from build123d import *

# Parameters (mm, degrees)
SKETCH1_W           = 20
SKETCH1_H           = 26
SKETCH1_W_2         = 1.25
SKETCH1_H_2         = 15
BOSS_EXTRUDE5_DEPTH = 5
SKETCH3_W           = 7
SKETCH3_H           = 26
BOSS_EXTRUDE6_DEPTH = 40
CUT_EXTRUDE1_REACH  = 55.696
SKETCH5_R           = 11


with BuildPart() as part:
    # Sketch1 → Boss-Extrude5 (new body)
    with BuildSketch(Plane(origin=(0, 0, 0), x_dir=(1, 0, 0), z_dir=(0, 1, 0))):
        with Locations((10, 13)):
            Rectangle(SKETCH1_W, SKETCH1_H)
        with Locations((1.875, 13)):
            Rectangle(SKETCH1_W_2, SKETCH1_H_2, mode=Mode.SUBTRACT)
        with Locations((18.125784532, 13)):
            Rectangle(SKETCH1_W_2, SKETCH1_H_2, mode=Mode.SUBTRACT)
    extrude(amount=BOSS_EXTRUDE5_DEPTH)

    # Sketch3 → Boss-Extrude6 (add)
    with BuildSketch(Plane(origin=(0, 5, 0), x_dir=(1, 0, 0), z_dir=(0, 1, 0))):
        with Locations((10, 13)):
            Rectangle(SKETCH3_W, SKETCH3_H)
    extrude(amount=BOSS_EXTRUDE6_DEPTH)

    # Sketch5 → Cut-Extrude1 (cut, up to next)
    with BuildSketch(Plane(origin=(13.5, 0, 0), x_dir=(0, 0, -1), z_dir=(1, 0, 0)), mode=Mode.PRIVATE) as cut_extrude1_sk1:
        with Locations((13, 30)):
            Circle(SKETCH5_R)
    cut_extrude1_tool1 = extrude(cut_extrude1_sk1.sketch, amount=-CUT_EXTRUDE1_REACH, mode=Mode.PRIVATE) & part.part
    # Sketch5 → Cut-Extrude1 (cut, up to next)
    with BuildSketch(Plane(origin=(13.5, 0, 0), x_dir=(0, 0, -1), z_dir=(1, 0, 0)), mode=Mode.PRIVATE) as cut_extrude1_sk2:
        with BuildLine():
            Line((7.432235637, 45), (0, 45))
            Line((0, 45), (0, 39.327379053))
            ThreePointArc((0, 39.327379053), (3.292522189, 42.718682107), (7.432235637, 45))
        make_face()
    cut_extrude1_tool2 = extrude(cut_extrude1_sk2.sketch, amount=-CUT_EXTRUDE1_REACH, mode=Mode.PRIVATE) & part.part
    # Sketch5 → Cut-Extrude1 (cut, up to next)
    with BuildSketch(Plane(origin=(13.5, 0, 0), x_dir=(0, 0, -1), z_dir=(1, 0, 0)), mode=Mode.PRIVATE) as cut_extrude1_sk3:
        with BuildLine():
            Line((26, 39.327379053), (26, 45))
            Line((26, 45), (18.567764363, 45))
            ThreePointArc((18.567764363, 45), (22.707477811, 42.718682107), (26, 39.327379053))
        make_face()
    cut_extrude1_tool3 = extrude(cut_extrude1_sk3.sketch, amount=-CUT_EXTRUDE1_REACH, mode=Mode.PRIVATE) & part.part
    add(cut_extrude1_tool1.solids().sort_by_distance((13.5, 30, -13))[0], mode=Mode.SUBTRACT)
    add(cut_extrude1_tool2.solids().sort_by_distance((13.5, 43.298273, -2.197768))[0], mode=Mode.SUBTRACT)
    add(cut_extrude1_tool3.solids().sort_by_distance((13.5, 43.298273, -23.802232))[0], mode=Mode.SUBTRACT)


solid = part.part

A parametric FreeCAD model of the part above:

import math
import FreeCAD as App
import Part
import Sketcher

V = App.Vector
Q = App.Units.Quantity


def add_polygon(sketch, points):
    """Adds a closed chain of lines whose ends are joined by coincident constraints."""
    first, n = sketch.GeometryCount, len(points)
    for a, b in zip(points, points[1:] + points[:1]):
        sketch.addGeometry(Part.LineSegment(App.Vector(*a, 0), App.Vector(*b, 0)), False)
    for i in range(n):
        sketch.addConstraint(Sketcher.Constraint("Coincident", first + i, 2, first + (i + 1) % n, 1))

doc = App.newDocument("Part")
params = doc.addObject("Spreadsheet::Sheet", "Params")
for row, (alias, value) in enumerate([
    ("sketch1_width", "20 mm"),
    ("sketch1_height", "26 mm"),
    ("sketch1_height2", "15 mm"),
    ("sketch1_width2", "1.25 mm"),
    ("pad1_length", "5 mm"),
    ("sketch2_width", "7 mm"),
    ("sketch2_height", "26 mm"),
    ("pad2_length", "40 mm"),
    ("sketch3_diameter", "22 mm"),
    ("sketch4_radius", "16 mm"),
    ("sketch5_radius", "16 mm"),
], start=1):
    params.set(f"A{row}", alias)
    params.set(f"B{row}", "=" + value)
    params.setAlias(f"B{row}", alias)

body = doc.addObject("PartDesign::Body", "Body")

# Sketch on XZ plane
sketch1 = doc.addObject("Sketcher::SketchObject", "Sketch")
body.addObject(sketch1)
sketch1.AttachmentSupport = (doc.XZ_Plane, [""])
sketch1.MapMode = "FlatFace"
add_polygon(sketch1, [(0, -26), (0, 0), (20, 0), (20, -26)])  # lines 0-3
add_polygon(sketch1, [(2.5, -5.5), (1.2, -5.5), (1.2, -20.5), (2.5, -20.5)])  # lines 4-7
add_polygon(sketch1, [(18.8, -5.5), (17.5, -5.5), (17.5, -20.5), (18.8, -20.5)])  # lines 8-11
sketch1.addConstraint([
    Sketcher.Constraint("Vertical", 0),
    Sketcher.Constraint("Horizontal", 1),
    Sketcher.Constraint("Vertical", 2),
    Sketcher.Constraint("Horizontal", 3),
    Sketcher.Constraint("Horizontal", 4),
    Sketcher.Constraint("Vertical", 5),
    Sketcher.Constraint("Horizontal", 6),
    Sketcher.Constraint("Vertical", 7),
    Sketcher.Constraint("Horizontal", 8),
    Sketcher.Constraint("Vertical", 9),
    Sketcher.Constraint("Horizontal", 10),
    Sketcher.Constraint("Vertical", 11),
    Sketcher.Constraint("Coincident", 0, 2, -1, 1),
    Sketcher.Constraint("Horizontal", 7, 2, 8, 2),
    Sketcher.Constraint("Horizontal", 6, 2, 9, 2),
    Sketcher.Constraint("Equal", 6, 8),
    Sketcher.Constraint("DistanceX", 1, 1, 1, 2, Q("20 mm")),
    Sketcher.Constraint("DistanceY", 0, 1, 0, 2, Q("26 mm")),
    Sketcher.Constraint("DistanceY", 5, 2, 5, 1, Q("15 mm")),
    Sketcher.Constraint("DistanceX", 4, 2, 4, 1, Q("1.25 mm")),
    Sketcher.Constraint("DistanceY", 4, 2, -1, 1, Q("5.5 mm")),
    Sketcher.Constraint("DistanceX", -1, 1, 6, 2, Q("2.5 mm")),
    Sketcher.Constraint("DistanceX", -1, 1, 8, 2, Q("17.500785 mm")),
])
sketch1.setExpression("Constraints[28]", "Params.sketch1_width")
sketch1.setExpression("Constraints[29]", "Params.sketch1_height")
sketch1.setExpression("Constraints[30]", "Params.sketch1_height2")
sketch1.setExpression("Constraints[31]", "Params.sketch1_width2")
pad1 = doc.addObject("PartDesign::Pad", "Pad")
body.addObject(pad1)
pad1.Profile = sketch1
pad1.setExpression("Length", "Params.pad1_length")
pad1.Reversed = True

# Sketch on XZ plane
sketch2 = doc.addObject("Sketcher::SketchObject", "Sketch001")
body.addObject(sketch2)
sketch2.AttachmentSupport = (doc.XZ_Plane, [""])
sketch2.MapMode = "FlatFace"
sketch2.AttachmentOffset = App.Placement(V(0, 0, -5), App.Rotation())
add_polygon(sketch2, [(6, -26), (6, 0), (14, 0), (14, -26)])  # lines 0-3
sketch2.addConstraint([
    Sketcher.Constraint("Vertical", 0),
    Sketcher.Constraint("Horizontal", 1),
    Sketcher.Constraint("Vertical", 2),
    Sketcher.Constraint("Horizontal", 3),
    Sketcher.Constraint("PointOnObject", 0, 2, -1),
    Sketcher.Constraint("DistanceX", 1, 1, 1, 2, Q("7 mm")),
    Sketcher.Constraint("DistanceY", 0, 1, 0, 2, Q("26 mm")),
    Sketcher.Constraint("DistanceX", -1, 1, 0, 2, Q("6.5 mm")),
])
sketch2.setExpression("Constraints[9]", "Params.sketch2_width")
sketch2.setExpression("Constraints[10]", "Params.sketch2_height")
pad2 = doc.addObject("PartDesign::Pad", "Pad001")
body.addObject(pad2)
pad2.Profile = sketch2
pad2.setExpression("Length", "Params.pad2_length")
pad2.Reversed = True

# Sketch on YZ plane
sketch3 = doc.addObject("Sketcher::SketchObject", "Sketch002")
body.addObject(sketch3)
sketch3.AttachmentSupport = (doc.YZ_Plane, [""])
sketch3.MapMode = "FlatFace"
sketch3.AttachmentOffset = App.Placement(V(0, 0, 13.5), App.Rotation())
sketch3.addGeometry(Part.Circle(V(30, -13, 0), V(0, 0, 1), 11), False)
sketch3.addConstraint([
    Sketcher.Constraint("Diameter", 0, Q("22 mm")),
    Sketcher.Constraint("DistanceX", -1, 1, 0, 3, Q("30 mm")),
    Sketcher.Constraint("DistanceY", 0, 3, -1, 1, Q("13 mm")),
])
sketch3.setExpression("Constraints[0]", "Params.sketch3_diameter")
pocket1 = doc.addObject("PartDesign::Pocket", "Pocket")
body.addObject(pocket1)
pocket1.Profile = sketch3
pocket1.Type = "UpToFirst"

# Sketch on YZ plane
sketch4 = doc.addObject("Sketcher::SketchObject", "Sketch003")
body.addObject(sketch4)
sketch4.AttachmentSupport = (doc.YZ_Plane, [""])
sketch4.MapMode = "FlatFace"
sketch4.AttachmentOffset = App.Placement(V(0, 0, 13.5), App.Rotation())
sketch4.addGeometry([
    Part.LineSegment(V(45, -7, 0), V(45, 0, 0)),
    Part.LineSegment(V(45, 0, 0), V(39, 0, 0)),
    Part.ArcOfCircle(Part.Circle(V(30, -13, 0), V(0, 0, 1), 16), math.radians(20), math.radians(54)),
], False)
sketch4.addConstraint([
    Sketcher.Constraint("Coincident", 0, 2, 1, 1),
    Sketcher.Constraint("Coincident", 1, 2, 2, 2),
    Sketcher.Constraint("Coincident", 2, 1, 0, 1),
    Sketcher.Constraint("Vertical", 0),
    Sketcher.Constraint("Horizontal", 1),
    Sketcher.Constraint("PointOnObject", 0, 2, -1),
    Sketcher.Constraint("Radius", 2, Q("16 mm")),
    Sketcher.Constraint("DistanceX", -1, 1, 2, 3, Q("30 mm")),
    Sketcher.Constraint("DistanceY", 2, 3, -1, 1, Q("13 mm")),
    Sketcher.Constraint("DistanceX", -1, 1, 0, 2, Q("45 mm")),
])
sketch4.setExpression("Constraints[6]", "Params.sketch4_radius")
pocket2 = doc.addObject("PartDesign::Pocket", "Pocket001")
body.addObject(pocket2)
pocket2.Profile = sketch4
pocket2.Type = "UpToFirst"

# Sketch on YZ plane
sketch5 = doc.addObject("Sketcher::SketchObject", "Sketch004")
body.addObject(sketch5)
sketch5.AttachmentSupport = (doc.YZ_Plane, [""])
sketch5.MapMode = "FlatFace"
sketch5.AttachmentOffset = App.Placement(V(0, 0, 13.5), App.Rotation())
sketch5.addGeometry([
    Part.LineSegment(V(39, -26, 0), V(45, -26, 0)),
    Part.LineSegment(V(45, -26, 0), V(45, -19, 0)),
    Part.ArcOfCircle(Part.Circle(V(30, -13, 0), V(0, 0, 1), 16), math.radians(-54), math.radians(-20)),
], False)
sketch5.addConstraint([
    Sketcher.Constraint("Coincident", 0, 2, 1, 1),
    Sketcher.Constraint("Coincident", 1, 2, 2, 2),
    Sketcher.Constraint("Coincident", 2, 1, 0, 1),
    Sketcher.Constraint("Horizontal", 0),
    Sketcher.Constraint("Vertical", 1),
    Sketcher.Constraint("Radius", 2, Q("16 mm")),
    Sketcher.Constraint("DistanceX", -1, 1, 2, 3, Q("30 mm")),
    Sketcher.Constraint("DistanceY", 2, 3, -1, 1, Q("13 mm")),
    Sketcher.Constraint("DistanceX", -1, 1, 0, 2, Q("45 mm")),
    Sketcher.Constraint("DistanceY", 0, 2, -1, 1, Q("26 mm")),
])
sketch5.setExpression("Constraints[5]", "Params.sketch5_radius")
pocket3 = doc.addObject("PartDesign::Pocket", "Pocket002")
body.addObject(pocket3)
pocket3.Profile = sketch5
pocket3.Type = "UpToFirst"

doc.recompute()
